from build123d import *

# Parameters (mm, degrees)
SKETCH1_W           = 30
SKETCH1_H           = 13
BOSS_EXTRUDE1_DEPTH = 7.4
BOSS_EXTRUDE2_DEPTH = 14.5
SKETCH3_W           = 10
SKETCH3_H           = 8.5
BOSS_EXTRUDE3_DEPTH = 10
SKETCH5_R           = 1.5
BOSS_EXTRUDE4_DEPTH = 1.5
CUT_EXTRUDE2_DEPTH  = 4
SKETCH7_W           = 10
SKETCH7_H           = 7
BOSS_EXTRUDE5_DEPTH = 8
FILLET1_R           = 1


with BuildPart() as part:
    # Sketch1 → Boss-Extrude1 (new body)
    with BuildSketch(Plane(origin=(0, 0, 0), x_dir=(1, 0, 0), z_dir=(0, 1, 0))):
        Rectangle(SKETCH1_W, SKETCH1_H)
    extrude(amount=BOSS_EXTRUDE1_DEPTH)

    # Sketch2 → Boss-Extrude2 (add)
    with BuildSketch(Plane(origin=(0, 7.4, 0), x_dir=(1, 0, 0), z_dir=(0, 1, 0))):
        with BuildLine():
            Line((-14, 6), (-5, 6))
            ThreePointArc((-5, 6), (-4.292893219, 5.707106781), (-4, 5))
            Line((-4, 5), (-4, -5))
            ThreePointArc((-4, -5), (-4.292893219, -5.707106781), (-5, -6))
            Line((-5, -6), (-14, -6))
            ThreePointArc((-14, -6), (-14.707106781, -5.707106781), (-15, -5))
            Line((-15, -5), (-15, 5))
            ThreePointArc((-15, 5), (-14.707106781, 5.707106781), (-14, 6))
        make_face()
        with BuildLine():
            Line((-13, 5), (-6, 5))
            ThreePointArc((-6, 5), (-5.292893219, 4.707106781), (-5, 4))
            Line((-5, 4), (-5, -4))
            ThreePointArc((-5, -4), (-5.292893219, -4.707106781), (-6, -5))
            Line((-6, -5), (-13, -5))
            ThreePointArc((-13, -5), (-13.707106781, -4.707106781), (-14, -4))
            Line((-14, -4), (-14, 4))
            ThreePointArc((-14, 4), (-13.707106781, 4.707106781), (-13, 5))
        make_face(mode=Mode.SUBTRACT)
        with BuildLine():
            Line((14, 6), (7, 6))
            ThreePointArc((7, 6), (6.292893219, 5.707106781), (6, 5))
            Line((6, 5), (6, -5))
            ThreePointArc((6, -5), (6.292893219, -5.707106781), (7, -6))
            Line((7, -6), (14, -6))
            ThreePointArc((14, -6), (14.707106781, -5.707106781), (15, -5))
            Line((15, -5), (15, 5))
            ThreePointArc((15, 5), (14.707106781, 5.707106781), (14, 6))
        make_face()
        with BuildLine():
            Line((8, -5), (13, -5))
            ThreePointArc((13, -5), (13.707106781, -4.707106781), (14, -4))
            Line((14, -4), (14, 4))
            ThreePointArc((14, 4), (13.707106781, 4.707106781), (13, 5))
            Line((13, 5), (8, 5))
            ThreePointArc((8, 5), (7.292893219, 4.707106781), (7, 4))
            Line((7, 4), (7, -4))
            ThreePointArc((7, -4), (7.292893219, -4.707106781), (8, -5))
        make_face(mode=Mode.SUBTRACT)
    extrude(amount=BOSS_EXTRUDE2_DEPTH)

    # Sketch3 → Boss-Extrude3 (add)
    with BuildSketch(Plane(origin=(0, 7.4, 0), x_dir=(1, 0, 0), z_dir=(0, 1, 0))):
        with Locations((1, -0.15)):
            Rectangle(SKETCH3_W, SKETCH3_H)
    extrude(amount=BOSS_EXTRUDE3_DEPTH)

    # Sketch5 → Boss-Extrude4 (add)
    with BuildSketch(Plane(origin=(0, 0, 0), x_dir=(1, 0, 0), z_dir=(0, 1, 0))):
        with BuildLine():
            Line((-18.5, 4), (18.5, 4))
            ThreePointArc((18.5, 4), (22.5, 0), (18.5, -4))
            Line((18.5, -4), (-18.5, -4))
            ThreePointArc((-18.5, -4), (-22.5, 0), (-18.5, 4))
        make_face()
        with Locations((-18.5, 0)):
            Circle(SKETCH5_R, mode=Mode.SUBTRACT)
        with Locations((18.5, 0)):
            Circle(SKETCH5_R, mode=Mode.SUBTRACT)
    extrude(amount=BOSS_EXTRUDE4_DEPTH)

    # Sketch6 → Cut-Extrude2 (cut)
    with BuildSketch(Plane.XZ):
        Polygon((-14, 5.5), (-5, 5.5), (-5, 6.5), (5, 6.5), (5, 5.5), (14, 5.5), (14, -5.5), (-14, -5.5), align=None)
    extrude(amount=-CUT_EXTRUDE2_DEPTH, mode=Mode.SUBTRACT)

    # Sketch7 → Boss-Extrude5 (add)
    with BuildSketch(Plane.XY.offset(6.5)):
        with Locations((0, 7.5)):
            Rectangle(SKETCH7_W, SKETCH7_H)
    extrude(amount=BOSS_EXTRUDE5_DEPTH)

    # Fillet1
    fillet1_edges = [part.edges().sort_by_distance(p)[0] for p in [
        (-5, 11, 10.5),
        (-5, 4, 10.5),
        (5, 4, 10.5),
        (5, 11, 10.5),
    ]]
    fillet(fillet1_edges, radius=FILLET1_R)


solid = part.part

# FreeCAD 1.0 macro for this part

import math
import FreeCAD as App
import Part
import Sketcher


def edges_at(feature, points):
    """Names of the edges that pass closest to the given points."""
    edges = feature.Shape.Edges
    near = lambda p: min(range(len(edges)), key=lambda i: edges[i].distToShape(Part.Vertex(*p))[0])
    return sorted({f"Edge{near(p) + 1}" for p in points})


def add_polygon(sketch, points):
    """Adds a closed chain of lines whose ends are joined by coincident constraints."""
    first, n = sketch.GeometryCount, len(points)
    for a, b in zip(points, points[1:] + points[:1]):
        sketch.addGeometry(Part.LineSegment(App.Vector(*a, 0), App.Vector(*b, 0)), False)
    for i in range(n):
        sketch.addConstraint(Sketcher.Constraint("Coincident", first + i, 2, first + (i + 1) % n, 1))

doc = App.newDocument("Part")
body = doc.addObject("PartDesign::Body", "Body")

# Sketch on XZ plane
sketch1 = body.newObject("Sketcher::SketchObject", "Sketch")
sketch1.AttachmentSupport = (doc.getObject("XZ_Plane"), [""])
sketch1.MapMode = "FlatFace"
add_polygon(sketch1, [(-15, -6), (-15, 6), (15, 6), (15, -6)])  # lines 0-3
sketch1.addConstraint([
    Sketcher.Constraint("Vertical", 0),
    Sketcher.Constraint("Horizontal", 1),
    Sketcher.Constraint("Vertical", 2),
    Sketcher.Constraint("Horizontal", 3),
    Sketcher.Constraint("Symmetric", 0, 2, 2, 2, -1, 1),
    Sketcher.Constraint("DistanceX", 1, 1, 1, 2, 30.0),
    Sketcher.Constraint("DistanceY", 0, 1, 0, 2, 13.0),
])
pad1 = body.newObject("PartDesign::Pad", "Pad")
pad1.Profile = sketch1
pad1.Length = 7.4
pad1.Reversed = True

# Sketch on XZ plane
sketch2 = body.newObject("Sketcher::SketchObject", "Sketch001")
sketch2.AttachmentSupport = (doc.getObject("XZ_Plane"), [""])
sketch2.MapMode = "FlatFace"
sketch2.AttachmentOffset = App.Placement(App.Vector(0, 0, -7.4), App.Rotation())
sketch2.addGeometry([
    Part.LineSegment(App.Vector(-5, -6, 0), App.Vector(-14, -6, 0)),  # 0
    Part.ArcOfCircle(Part.Circle(App.Vector(-14, -5, 0), App.Vector(0, 0, 1), 1), math.radians(-180), math.radians(-90)),  # 1
    Part.LineSegment(App.Vector(-15, -5, 0), App.Vector(-15, 5, 0)),  # 2
    Part.ArcOfCircle(Part.Circle(App.Vector(-14, 5, 0), App.Vector(0, 0, 1), 1), math.radians(90), math.radians(180)),  # 3
    Part.LineSegment(App.Vector(-14, 6, 0), App.Vector(-5, 6, 0)),  # 4
    Part.ArcOfCircle(Part.Circle(App.Vector(-5, 5, 0), App.Vector(0, 0, 1), 1), math.radians(0), math.radians(90)),  # 5
    Part.LineSegment(App.Vector(-4, 5, 0), App.Vector(-4, -5, 0)),  # 6
    Part.ArcOfCircle(Part.Circle(App.Vector(-5, -5, 0), App.Vector(0, 0, 1), 1), math.radians(-90), math.radians(0)),  # 7
    Part.LineSegment(App.Vector(-13, -5, 0), App.Vector(-6, -5, 0)),  # 8
    Part.ArcOfCircle(Part.Circle(App.Vector(-6, -4, 0), App.Vector(0, 0, 1), 1), math.radians(-90), math.radians(0)),  # 9
    Part.LineSegment(App.Vector(-5, -4, 0), App.Vector(-5, 4, 0)),  # 10
    Part.ArcOfCircle(Part.Circle(App.Vector(-6, 4, 0), App.Vector(0, 0, 1), 1), math.radians(0), math.radians(90)),  # 11
    Part.LineSegment(App.Vector(-6, 5, 0), App.Vector(-13, 5, 0)),  # 12
    Part.ArcOfCircle(Part.Circle(App.Vector(-13, 4, 0), App.Vector(0, 0, 1), 1), math.radians(90), math.radians(180)),  # 13
    Part.LineSegment(App.Vector(-14, 4, 0), App.Vector(-14, -4, 0)),  # 14
    Part.ArcOfCircle(Part.Circle(App.Vector(-13, -4, 0), App.Vector(0, 0, 1), 1), math.radians(-180), math.radians(-90)),  # 15
    Part.LineSegment(App.Vector(14, -6, 0), App.Vector(7, -6, 0)),  # 16
    Part.ArcOfCircle(Part.Circle(App.Vector(7, -5, 0), App.Vector(0, 0, 1), 1), math.radians(-180), math.radians(-90)),  # 17
    Part.LineSegment(App.Vector(6, -5, 0), App.Vector(6, 5, 0)),  # 18
    Part.ArcOfCircle(Part.Circle(App.Vector(7, 5, 0), App.Vector(0, 0, 1), 1), math.radians(90), math.radians(180)),  # 19
    Part.LineSegment(App.Vector(7, 6, 0), App.Vector(14, 6, 0)),  # 20
    Part.ArcOfCircle(Part.Circle(App.Vector(14, 5, 0), App.Vector(0, 0, 1), 1), math.radians(0), math.radians(90)),  # 21
    Part.LineSegment(App.Vector(15, 5, 0), App.Vector(15, -5, 0)),  # 22
    Part.ArcOfCircle(Part.Circle(App.Vector(14, -5, 0), App.Vector(0, 0, 1), 1), math.radians(-90), math.radians(0)),  # 23
    Part.LineSegment(App.Vector(13, 5, 0), App.Vector(8, 5, 0)),  # 24
    Part.ArcOfCircle(Part.Circle(App.Vector(8, 4, 0), App.Vector(0, 0, 1), 1), math.radians(90), math.radians(180)),  # 25
    Part.LineSegment(App.Vector(7, 4, 0), App.Vector(7, -4, 0)),  # 26
    Part.ArcOfCircle(Part.Circle(App.Vector(8, -4, 0), App.Vector(0, 0, 1), 1), math.radians(-180), math.radians(-90)),  # 27
    Part.LineSegment(App.Vector(8, -5, 0), App.Vector(13, -5, 0)),  # 28
    Part.ArcOfCircle(Part.Circle(App.Vector(13, -4, 0), App.Vector(0, 0, 1), 1), math.radians(-90), math.radians(0)),  # 29
    Part.LineSegment(App.Vector(14, -4, 0), App.Vector(14, 4, 0)),  # 30
    Part.ArcOfCircle(Part.Circle(App.Vector(13, 4, 0), App.Vector(0, 0, 1), 1), math.radians(0), math.radians(90)),  # 31
], False)
sketch2.addConstraint([
    Sketcher.Constraint("Tangent", 0, 2, 1, 2),
    Sketcher.Constraint("Tangent", 1, 1, 2, 1),
    Sketcher.Constraint("Tangent", 2, 2, 3, 2),
    Sketcher.Constraint("Tangent", 3, 1, 4, 1),
    Sketcher.Constraint("Tangent", 4, 2, 5, 2),
    Sketcher.Constraint("Tangent", 5, 1, 6, 1),
    Sketcher.Constraint("Tangent", 6, 2, 7, 2),
    Sketcher.Constraint("Tangent", 7, 1, 0, 1),
    Sketcher.Constraint("Tangent", 8, 2, 9, 1),
    Sketcher.Constraint("Tangent", 9, 2, 10, 1),
    Sketcher.Constraint("Tangent", 10, 2, 11, 1),
    Sketcher.Constraint("Tangent", 11, 2, 12, 1),
    Sketcher.Constraint("Tangent", 12, 2, 13, 1),
    Sketcher.Constraint("Tangent", 13, 2, 14, 1),
    Sketcher.Constraint("Tangent", 14, 2, 15, 1),
    Sketcher.Constraint("Tangent", 15, 2, 8, 1),
    Sketcher.Constraint("Tangent", 16, 2, 17, 2),
    Sketcher.Constraint("Tangent", 17, 1, 18, 1),
    Sketcher.Constraint("Tangent", 18, 2, 19, 2),
    Sketcher.Constraint("Tangent", 19, 1, 20, 1),
    Sketcher.Constraint("Tangent", 20, 2, 21, 2),
    Sketcher.Constraint("Tangent", 21, 1, 22, 1),
    Sketcher.Constraint("Tangent", 22, 2, 23, 2),
    Sketcher.Constraint("Tangent", 23, 1, 16, 1),
    Sketcher.Constraint("Tangent", 24, 2, 25, 1),
    Sketcher.Constraint("Tangent", 25, 2, 26, 1),
    Sketcher.Constraint("Tangent", 26, 2, 27, 1),
    Sketcher.Constraint("Tangent", 27, 2, 28, 1),
    Sketcher.Constraint("Tangent", 28, 2, 29, 1),
    Sketcher.Constraint("Tangent", 29, 2, 30, 1),
    Sketcher.Constraint("Tangent", 30, 2, 31, 1),
    Sketcher.Constraint("Tangent", 31, 2, 24, 1),
    Sketcher.Constraint("Horizontal", 0),
    Sketcher.Constraint("Vertical", 2),
    Sketcher.Constraint("Horizontal", 4),
    Sketcher.Constraint("Vertical", 6),
    Sketcher.Constraint("Horizontal", 8),
    Sketcher.Constraint("Vertical", 10),
    Sketcher.Constraint("Horizontal", 12),
    Sketcher.Constraint("Vertical", 14),
    Sketcher.Constraint("Horizontal", 16),
    Sketcher.Constraint("Vertical", 18),
    Sketcher.Constraint("Horizontal", 20),
    Sketcher.Constraint("Vertical", 22),
    Sketcher.Constraint("Horizontal", 24),
    Sketcher.Constraint("Vertical", 26),
    Sketcher.Constraint("Horizontal", 28),
    Sketcher.Constraint("Vertical", 30),
    Sketcher.Constraint("Equal", 1, 3),
    Sketcher.Constraint("Equal", 3, 5),
    Sketcher.Constraint("Equal", 5, 7),
    Sketcher.Constraint("Equal", 7, 9),
    Sketcher.Constraint("Equal", 9, 11),
    Sketcher.Constraint("Equal", 11, 13),
    Sketcher.Constraint("Equal", 13, 15),
    Sketcher.Constraint("Equal", 15, 17),
    Sketcher.Constraint("Equal", 17, 19),
    Sketcher.Constraint("Equal", 19, 21),
    Sketcher.Constraint("Equal", 21, 23),
    Sketcher.Constraint("Equal", 23, 25),
    Sketcher.Constraint("Equal", 25, 27),
    Sketcher.Constraint("Equal", 27, 29),
    Sketcher.Constraint("Equal", 29, 31),
    Sketcher.Constraint("Symmetric", 1, 3, 21, 3, -1, 1),
    Sketcher.Constraint("Symmetric", 13, 3, 29, 3, -1, 1),
    Sketcher.Constraint("Symmetric", 11, 2, 17, 1, -1, 1),
    Sketcher.Constraint("Horizontal", 7, 3, 17, 3),
    Sketcher.Constraint("Horizontal", 5, 3, 19, 3),
    Sketcher.Constraint("Horizontal", 13, 3, 25, 3),
    Sketcher.Constraint("Horizontal", 15, 3, 27, 3),
    Sketcher.Constraint("Vertical", 7, 1, 9, 2),
    Sketcher.Constraint("Vertical", 3, 1, 13, 2),
    Sketcher.Constraint("Vertical", 19, 1, 25, 2),
    Sketcher.Constraint("Radius", 1, 1.0),
    Sketcher.Constraint("DistanceX", 0, 2, 0, 1, 9.0),
    Sketcher.Constraint("DistanceY", 2, 1, 2, 2, 10.0),
    Sketcher.Constraint("DistanceX", 1, 3, -1, 1, 14.0),
])
pad2 = body.newObject("PartDesign::Pad", "Pad001")
pad2.Profile = sketch2
pad2.Length = 14.5
pad2.Reversed = True

# Sketch on XZ plane
sketch3 = body.newObject("Sketcher::SketchObject", "Sketch002")
sketch3.AttachmentSupport = (doc.getObject("XZ_Plane"), [""])
sketch3.MapMode = "FlatFace"
sketch3.AttachmentOffset = App.Placement(App.Vector(0, 0, -7.4), App.Rotation())
add_polygon(sketch3, [(-4, -4), (-4, 4), (6, 4), (6, -4)])  # lines 0-3
sketch3.addConstraint([
    Sketcher.Constraint("Vertical", 0),
    Sketcher.Constraint("Horizontal", 1),
    Sketcher.Constraint("Vertical", 2),
    Sketcher.Constraint("Horizontal", 3),
    Sketcher.Constraint("DistanceX", 1, 1, 1, 2, 10.0),
    Sketcher.Constraint("DistanceY", 0, 1, 0, 2, 8.5),
    Sketcher.Constraint("DistanceX", 0, 2, -1, 1, 4.0),
    Sketcher.Constraint("DistanceY", -1, 1, 0, 2, 4.4),
])
pad3 = body.newObject("PartDesign::Pad", "Pad002")
pad3.Profile = sketch3
pad3.Length = 10
pad3.Reversed = True

# Sketch on XZ plane
sketch4 = body.newObject("Sketcher::SketchObject", "Sketch003")
sketch4.AttachmentSupport = (doc.getObject("XZ_Plane"), [""])
sketch4.MapMode = "FlatFace"
sketch4.addGeometry([
    Part.LineSegment(App.Vector(18.5, -4, 0), App.Vector(-18.5, -4, 0)),  # 0
    Part.ArcOfCircle(Part.Circle(App.Vector(-18.5, 0, 0), App.Vector(0, 0, 1), 4), math.radians(90), math.radians(270)),  # 1
    Part.LineSegment(App.Vector(-18.5, 4, 0), App.Vector(18.5, 4, 0)),  # 2
    Part.ArcOfCircle(Part.Circle(App.Vector(18.5, 0, 0), App.Vector(0, 0, 1), 4), math.radians(-90), math.radians(90)),  # 3
    Part.Circle(App.Vector(18.5, 0, 0), App.Vector(0, 0, 1), 1.5),  # 4
    Part.Circle(App.Vector(-18.5, 0, 0), App.Vector(0, 0, 1), 1.5),  # 5
], False)
sketch4.addConstraint([
    Sketcher.Constraint("Tangent", 0, 2, 1, 2),
    Sketcher.Constraint("Tangent", 1, 1, 2, 1),
    Sketcher.Constraint("Tangent", 2, 2, 3, 2),
    Sketcher.Constraint("Tangent", 3, 1, 0, 1),
    Sketcher.Constraint("Horizontal", 0),
    Sketcher.Constraint("Horizontal", 2),
    Sketcher.Constraint("Coincident", 4, 3, 3, 3),
    Sketcher.Constraint("Coincident", 5, 3, 1, 3),
    Sketcher.Constraint("Equal", 4, 5),
    Sketcher.Constraint("Symmetric", 1, 3, 3, 3, -1, 1),
    Sketcher.Constraint("Diameter", 4, 3.0),
    Sketcher.Constraint("Radius", 1, 4.0),
    Sketcher.Constraint("DistanceX", 0, 2, 0, 1, 37.0),
])
pad4 = body.newObject("PartDesign::Pad", "Pad003")
pad4.Profile = sketch4
pad4.Length = 1.5
pad4.Reversed = True

# Sketch on XZ plane
sketch5 = body.newObject("Sketcher::SketchObject", "Sketch004")
sketch5.AttachmentSupport = (doc.getObject("XZ_Plane"), [""])
sketch5.MapMode = "FlatFace"
add_polygon(sketch5, [(-5, 5.5), (-14, 5.5), (-14, -5.5), (14, -5.5), (14, 5.5), (5, 5.5), (5, 6.5), (-5, 6.5)])  # lines 0-7
sketch5.addConstraint([
    Sketcher.Constraint("Horizontal", 0),
    Sketcher.Constraint("Vertical", 1),
    Sketcher.Constraint("Horizontal", 2),
    Sketcher.Constraint("Vertical", 3),
    Sketcher.Constraint("Horizontal", 4),
    Sketcher.Constraint("Vertical", 5),
    Sketcher.Constraint("Horizontal", 6),
    Sketcher.Constraint("Vertical", 7),
    Sketcher.Constraint("Symmetric", 0, 2, 2, 2, -1, 1),
    Sketcher.Constraint("Symmetric", 4, 2, 7, 2, -2),
    Sketcher.Constraint("DistanceX", 0, 2, 0, 1, 9.0),
    Sketcher.Constraint("DistanceX", 2, 1, 2, 2, 28.0),
    Sketcher.Constraint("DistanceY", 1, 2, 1, 1, 11.0),
    Sketcher.Constraint("DistanceY", 5, 1, 5, 2, 1.0),
])
pocket1 = body.newObject("PartDesign::Pocket", "Pocket")
pocket1.Profile = sketch5
pocket1.Length = 4

# Sketch on XY plane
sketch6 = body.newObject("Sketcher::SketchObject", "Sketch005")
sketch6.AttachmentSupport = (doc.getObject("XY_Plane"), [""])
sketch6.MapMode = "FlatFace"
sketch6.AttachmentOffset = App.Placement(App.Vector(0, 0, 6.5), App.Rotation())
add_polygon(sketch6, [(-5, 11), (-5, 4), (5, 4), (5, 11)])  # lines 0-3
sketch6.addConstraint([
    Sketcher.Constraint("Vertical", 0),
    Sketcher.Constraint("Horizontal", 1),
    Sketcher.Constraint("Vertical", 2),
    Sketcher.Constraint("Horizontal", 3),
    Sketcher.Constraint("DistanceX", 1, 1, 1, 2, 10.0),
    Sketcher.Constraint("DistanceY", 0, 2, 0, 1, 7.0),
    Sketcher.Constraint("DistanceX", 0, 2, -1, 1, 5.0),
    Sketcher.Constraint("DistanceY", -1, 1, 0, 2, 4.0),
])
pad5 = body.newObject("PartDesign::Pad", "Pad004")
pad5.Profile = sketch6
pad5.Length = 8
doc.recompute()

fillet = body.newObject("PartDesign::Fillet", "Fillet")
fillet.Base = (pad5, edges_at(pad5, [
    (-5, 11, 10.5),
    (-5, 4, 10.5),
    (5, 4, 10.5),
    (5, 11, 10.5),
]))
fillet.Radius = 1

doc.recompute()
